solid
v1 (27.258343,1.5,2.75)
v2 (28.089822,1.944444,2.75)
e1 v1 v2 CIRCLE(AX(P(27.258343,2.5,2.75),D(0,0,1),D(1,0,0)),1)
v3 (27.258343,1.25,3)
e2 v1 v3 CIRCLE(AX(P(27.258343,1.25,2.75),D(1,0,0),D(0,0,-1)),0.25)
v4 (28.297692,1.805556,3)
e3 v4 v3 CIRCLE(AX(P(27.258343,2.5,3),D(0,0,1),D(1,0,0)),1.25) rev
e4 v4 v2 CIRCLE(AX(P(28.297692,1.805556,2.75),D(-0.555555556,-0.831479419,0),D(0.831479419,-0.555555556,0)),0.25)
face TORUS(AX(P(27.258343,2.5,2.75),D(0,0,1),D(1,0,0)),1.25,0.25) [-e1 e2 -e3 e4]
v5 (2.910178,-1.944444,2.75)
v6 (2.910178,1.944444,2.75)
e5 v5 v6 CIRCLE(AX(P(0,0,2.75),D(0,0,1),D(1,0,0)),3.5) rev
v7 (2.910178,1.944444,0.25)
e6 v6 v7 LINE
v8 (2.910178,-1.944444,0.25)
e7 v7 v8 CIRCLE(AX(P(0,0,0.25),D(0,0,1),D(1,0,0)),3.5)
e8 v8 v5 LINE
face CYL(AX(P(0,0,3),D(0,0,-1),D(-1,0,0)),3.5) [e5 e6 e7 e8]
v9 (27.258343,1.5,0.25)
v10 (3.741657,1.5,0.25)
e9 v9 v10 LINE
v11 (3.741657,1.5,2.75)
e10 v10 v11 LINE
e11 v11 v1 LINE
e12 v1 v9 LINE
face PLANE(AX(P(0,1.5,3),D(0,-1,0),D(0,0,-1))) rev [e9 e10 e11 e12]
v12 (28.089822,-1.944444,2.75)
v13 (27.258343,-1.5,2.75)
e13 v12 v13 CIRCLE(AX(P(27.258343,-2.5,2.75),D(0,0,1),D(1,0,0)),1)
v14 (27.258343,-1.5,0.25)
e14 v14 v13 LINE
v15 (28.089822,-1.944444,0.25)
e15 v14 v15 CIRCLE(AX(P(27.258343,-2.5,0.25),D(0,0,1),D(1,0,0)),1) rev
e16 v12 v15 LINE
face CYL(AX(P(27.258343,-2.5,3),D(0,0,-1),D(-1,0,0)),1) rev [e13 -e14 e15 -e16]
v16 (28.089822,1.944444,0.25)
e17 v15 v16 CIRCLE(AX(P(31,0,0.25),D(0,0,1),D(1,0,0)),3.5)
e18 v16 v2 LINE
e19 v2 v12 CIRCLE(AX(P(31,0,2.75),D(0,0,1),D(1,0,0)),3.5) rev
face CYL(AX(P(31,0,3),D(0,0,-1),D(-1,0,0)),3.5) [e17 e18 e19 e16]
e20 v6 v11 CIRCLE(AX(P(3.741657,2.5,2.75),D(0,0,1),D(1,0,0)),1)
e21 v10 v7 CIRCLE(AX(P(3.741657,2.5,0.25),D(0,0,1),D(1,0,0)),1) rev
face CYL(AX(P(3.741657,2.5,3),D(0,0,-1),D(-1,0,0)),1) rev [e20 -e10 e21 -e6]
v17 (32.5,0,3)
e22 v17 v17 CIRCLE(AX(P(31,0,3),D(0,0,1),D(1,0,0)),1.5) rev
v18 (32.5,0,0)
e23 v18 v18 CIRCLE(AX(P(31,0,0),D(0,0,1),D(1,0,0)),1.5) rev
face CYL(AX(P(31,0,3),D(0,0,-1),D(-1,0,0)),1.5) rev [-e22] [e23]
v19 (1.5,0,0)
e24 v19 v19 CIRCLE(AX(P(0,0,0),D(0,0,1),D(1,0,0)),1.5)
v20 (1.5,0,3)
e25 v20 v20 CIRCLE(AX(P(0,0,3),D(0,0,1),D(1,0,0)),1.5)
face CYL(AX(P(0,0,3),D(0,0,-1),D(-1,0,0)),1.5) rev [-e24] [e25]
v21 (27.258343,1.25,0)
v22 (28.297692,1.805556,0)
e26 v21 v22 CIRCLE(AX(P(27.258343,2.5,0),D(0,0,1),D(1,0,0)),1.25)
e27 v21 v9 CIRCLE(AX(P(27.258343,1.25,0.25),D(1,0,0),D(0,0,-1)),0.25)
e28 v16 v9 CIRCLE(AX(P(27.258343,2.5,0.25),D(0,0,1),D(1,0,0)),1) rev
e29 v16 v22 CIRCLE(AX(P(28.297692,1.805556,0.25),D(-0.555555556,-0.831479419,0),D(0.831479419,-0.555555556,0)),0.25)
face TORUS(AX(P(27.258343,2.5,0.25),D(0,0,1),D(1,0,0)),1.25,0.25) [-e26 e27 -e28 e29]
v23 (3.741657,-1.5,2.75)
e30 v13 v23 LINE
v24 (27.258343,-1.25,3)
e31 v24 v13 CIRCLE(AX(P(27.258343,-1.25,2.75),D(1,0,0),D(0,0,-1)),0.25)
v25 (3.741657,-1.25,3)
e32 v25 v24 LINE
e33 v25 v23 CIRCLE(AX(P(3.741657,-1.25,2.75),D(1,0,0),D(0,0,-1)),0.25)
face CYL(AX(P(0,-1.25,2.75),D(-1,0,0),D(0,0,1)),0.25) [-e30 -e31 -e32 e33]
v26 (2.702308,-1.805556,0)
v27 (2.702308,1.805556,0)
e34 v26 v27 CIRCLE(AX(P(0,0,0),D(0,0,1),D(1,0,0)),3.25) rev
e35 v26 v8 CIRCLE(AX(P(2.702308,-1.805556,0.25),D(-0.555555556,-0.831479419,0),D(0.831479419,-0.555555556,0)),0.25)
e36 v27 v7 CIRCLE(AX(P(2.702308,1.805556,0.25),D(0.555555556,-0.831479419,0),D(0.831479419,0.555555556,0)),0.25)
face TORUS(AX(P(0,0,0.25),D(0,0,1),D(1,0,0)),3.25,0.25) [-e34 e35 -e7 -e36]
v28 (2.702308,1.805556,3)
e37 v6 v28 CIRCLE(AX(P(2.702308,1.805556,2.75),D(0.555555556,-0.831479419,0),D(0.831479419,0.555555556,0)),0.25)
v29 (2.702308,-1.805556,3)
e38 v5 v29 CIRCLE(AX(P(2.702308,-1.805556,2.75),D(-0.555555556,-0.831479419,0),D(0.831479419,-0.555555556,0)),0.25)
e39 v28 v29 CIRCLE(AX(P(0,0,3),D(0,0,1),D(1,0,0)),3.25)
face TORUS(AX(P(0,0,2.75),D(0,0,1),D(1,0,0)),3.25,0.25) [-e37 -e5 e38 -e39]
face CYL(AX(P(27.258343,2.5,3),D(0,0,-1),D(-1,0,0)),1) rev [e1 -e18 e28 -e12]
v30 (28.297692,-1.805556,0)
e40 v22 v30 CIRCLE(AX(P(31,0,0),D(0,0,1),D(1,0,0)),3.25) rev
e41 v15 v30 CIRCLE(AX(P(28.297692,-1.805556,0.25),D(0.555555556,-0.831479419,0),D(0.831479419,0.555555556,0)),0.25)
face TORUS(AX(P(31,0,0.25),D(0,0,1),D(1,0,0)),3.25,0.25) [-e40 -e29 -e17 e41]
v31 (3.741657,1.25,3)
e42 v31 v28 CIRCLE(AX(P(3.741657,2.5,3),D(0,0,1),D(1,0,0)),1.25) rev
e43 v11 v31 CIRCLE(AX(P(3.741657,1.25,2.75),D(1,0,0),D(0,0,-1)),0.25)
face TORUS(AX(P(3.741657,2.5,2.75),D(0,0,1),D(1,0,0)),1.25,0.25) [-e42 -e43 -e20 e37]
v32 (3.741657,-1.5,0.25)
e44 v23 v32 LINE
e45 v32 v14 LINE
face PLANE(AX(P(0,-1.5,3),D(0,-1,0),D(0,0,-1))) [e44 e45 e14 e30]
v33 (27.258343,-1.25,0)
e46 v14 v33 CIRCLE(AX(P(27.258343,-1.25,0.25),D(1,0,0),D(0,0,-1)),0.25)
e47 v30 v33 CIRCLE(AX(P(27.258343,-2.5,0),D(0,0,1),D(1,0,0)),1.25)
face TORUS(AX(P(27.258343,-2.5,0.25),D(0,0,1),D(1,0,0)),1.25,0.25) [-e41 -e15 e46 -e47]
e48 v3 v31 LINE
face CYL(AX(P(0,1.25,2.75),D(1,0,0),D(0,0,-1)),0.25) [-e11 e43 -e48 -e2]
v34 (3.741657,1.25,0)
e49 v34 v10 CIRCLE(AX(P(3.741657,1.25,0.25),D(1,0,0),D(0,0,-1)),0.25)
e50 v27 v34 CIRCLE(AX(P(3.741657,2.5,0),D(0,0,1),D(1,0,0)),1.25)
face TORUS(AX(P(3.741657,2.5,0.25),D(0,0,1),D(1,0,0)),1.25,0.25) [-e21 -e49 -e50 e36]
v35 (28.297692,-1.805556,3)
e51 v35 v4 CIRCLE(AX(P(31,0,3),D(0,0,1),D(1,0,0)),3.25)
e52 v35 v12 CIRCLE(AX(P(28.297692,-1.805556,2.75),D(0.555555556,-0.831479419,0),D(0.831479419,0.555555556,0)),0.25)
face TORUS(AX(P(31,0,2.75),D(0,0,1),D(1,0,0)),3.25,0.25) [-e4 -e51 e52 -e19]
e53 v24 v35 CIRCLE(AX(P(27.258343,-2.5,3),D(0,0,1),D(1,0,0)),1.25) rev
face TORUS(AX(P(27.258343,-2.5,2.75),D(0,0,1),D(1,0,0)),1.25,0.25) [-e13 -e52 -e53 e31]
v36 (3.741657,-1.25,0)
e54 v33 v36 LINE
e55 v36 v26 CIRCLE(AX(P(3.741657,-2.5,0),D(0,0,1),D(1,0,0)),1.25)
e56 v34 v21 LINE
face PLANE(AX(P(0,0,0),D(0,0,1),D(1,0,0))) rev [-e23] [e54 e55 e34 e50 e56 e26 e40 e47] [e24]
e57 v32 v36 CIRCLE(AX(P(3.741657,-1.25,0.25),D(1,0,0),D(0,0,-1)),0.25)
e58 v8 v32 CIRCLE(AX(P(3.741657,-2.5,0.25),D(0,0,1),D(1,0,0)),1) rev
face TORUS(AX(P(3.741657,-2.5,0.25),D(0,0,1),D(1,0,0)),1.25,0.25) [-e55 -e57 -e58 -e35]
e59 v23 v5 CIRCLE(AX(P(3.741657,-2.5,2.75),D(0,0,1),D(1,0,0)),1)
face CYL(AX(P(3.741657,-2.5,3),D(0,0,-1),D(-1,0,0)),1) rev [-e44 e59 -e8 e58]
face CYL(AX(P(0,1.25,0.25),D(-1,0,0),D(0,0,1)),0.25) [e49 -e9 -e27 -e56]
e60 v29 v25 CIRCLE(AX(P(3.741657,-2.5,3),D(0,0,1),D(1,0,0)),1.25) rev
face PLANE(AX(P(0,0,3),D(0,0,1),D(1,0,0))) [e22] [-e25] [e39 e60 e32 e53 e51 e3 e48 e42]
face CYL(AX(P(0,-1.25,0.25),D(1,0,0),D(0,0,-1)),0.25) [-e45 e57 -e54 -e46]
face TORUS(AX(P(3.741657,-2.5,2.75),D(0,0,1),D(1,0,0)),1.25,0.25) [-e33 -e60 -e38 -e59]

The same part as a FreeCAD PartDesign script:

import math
import FreeCAD as App
import Part
import Sketcher

V = App.Vector


def edges_at(feature, points):
    """Names of the edges that pass closest to the given points."""
    edges = feature.Shape.Edges
    near = lambda p: min(range(len(edges)), key=lambda i: edges[i].distToShape(Part.Vertex(*p))[0])
    return sorted({f"Edge{near(p) + 1}" for p in points})

doc = App.newDocument("Part")
body = doc.addObject("PartDesign::Body", "Body")

# Sketch on XY plane
sketch1 = body.newObject("Sketcher::SketchObject", "Sketch")
sketch1.AttachmentSupport = (doc.getObject("XY_Plane"), [""])
sketch1.MapMode = "FlatFace"
sketch1.addGeometry(Part.ArcOfCircle(Part.Circle(V(0, 0, 0), V(0, 0, 1), 3.5), math.radians(25.376934), math.radians(334.623066)), False)
sketch1.addGeometry(Part.LineSegment(V(3.162278, -1.5, 0), V(27.837722, -1.5, 0)), False)
sketch1.addGeometry(Part.ArcOfCircle(Part.Circle(V(31, 0, 0), V(0, 0, 1), 3.5), math.radians(-154.623066), math.radians(0)), False)
sketch1.addGeometry(Part.ArcOfCircle(Part.Circle(V(31, 0, 0), V(0, 0, 1), 3.5), math.radians(0), math.radians(154.623066)), False)
sketch1.addGeometry(Part.LineSegment(V(27.837722, 1.5, 0), V(3.162278, 1.5, 0)), False)
sketch1.addGeometry(Part.Circle(V(0, 0, 0), V(0, 0, 1), 1.5), False)
sketch1.addGeometry(Part.Circle(V(31, 0, 0), V(0, 0, 1), 1.5), False)
sketch1.addConstraint(Sketcher.Constraint("Coincident", 0, 2, 1, 1))
sketch1.addConstraint(Sketcher.Constraint("Coincident", 1, 2, 2, 1))
sketch1.addConstraint(Sketcher.Constraint("Tangent", 2, 2, 3, 1))
sketch1.addConstraint(Sketcher.Constraint("Coincident", 3, 2, 4, 1))
sketch1.addConstraint(Sketcher.Constraint("Coincident", 4, 2, 0, 1))
sketch1.addConstraint(Sketcher.Constraint("Horizontal", 1))
sketch1.addConstraint(Sketcher.Constraint("Horizontal", 4))
sketch1.addConstraint(Sketcher.Constraint("Coincident", 0, 3, -1, 1))
sketch1.addConstraint(Sketcher.Constraint("Coincident", 5, 3, -1, 1))
sketch1.addConstraint(Sketcher.Constraint("Coincident", 6, 3, 2, 3))
sketch1.addConstraint(Sketcher.Constraint("Equal", 0, 2))
sketch1.addConstraint(Sketcher.Constraint("Equal", 2, 3))
sketch1.addConstraint(Sketcher.Constraint("Equal", 5, 6))
sketch1.addConstraint(Sketcher.Constraint("Symmetric", 1, 2, 3, 2, -1))
sketch1.addConstraint(Sketcher.Constraint("PointOnObject", 2, 2, -1))
sketch1.addConstraint(Sketcher.Constraint("Diameter", 5, 3.0))
sketch1.addConstraint(Sketcher.Constraint("Radius", 0, 3.5))
sketch1.addConstraint(Sketcher.Constraint("DistanceX", -1, 1, 2, 3, 31.0))
sketch1.addConstraint(Sketcher.Constraint("DistanceY", 1, 2, 3, 2, 3.0))
pad1 = body.newObject("PartDesign::Pad", "Pad")
pad1.Profile = sketch1
pad1.Length = 3
doc.recompute()

fillet = body.newObject("PartDesign::Fillet", "Fillet")
fillet.Base = (pad1, edges_at(pad1, [
    (3.162, 1.5, 1.5),
    (27.838, 1.5, 1.5),
    (27.838, -1.5, 1.5),
    (3.162, -1.5, 1.5),
]))
fillet.Radius = 1
doc.recompute()

fillet2 = body.newObject("PartDesign::Fillet", "Fillet001")
fillet2.Base = (fillet, edges_at(fillet, [
    (15.5, -1.5, 0),
    (15.5, -1.5, 3),
    (-3.5, 0, 0),
    (-3.5, 0, 3),
    (15.5, 1.5, 0),
    (15.5, 1.5, 3),
    (32.016, -3.349, 0),
    (34.5, 0, 1.5),
    (3.27, -1.618, 0),
    (3.27, -1.618, 3),
    (3.27, 1.618, 0),
    (3.27, 1.618, 3),
    (27.73, 1.618, 0),
    (27.73, 1.618, 3),
    (27.73, -1.618, 0),
    (27.73, -1.618, 3),
]))
fillet2.Radius = 0.25

doc.recompute()
